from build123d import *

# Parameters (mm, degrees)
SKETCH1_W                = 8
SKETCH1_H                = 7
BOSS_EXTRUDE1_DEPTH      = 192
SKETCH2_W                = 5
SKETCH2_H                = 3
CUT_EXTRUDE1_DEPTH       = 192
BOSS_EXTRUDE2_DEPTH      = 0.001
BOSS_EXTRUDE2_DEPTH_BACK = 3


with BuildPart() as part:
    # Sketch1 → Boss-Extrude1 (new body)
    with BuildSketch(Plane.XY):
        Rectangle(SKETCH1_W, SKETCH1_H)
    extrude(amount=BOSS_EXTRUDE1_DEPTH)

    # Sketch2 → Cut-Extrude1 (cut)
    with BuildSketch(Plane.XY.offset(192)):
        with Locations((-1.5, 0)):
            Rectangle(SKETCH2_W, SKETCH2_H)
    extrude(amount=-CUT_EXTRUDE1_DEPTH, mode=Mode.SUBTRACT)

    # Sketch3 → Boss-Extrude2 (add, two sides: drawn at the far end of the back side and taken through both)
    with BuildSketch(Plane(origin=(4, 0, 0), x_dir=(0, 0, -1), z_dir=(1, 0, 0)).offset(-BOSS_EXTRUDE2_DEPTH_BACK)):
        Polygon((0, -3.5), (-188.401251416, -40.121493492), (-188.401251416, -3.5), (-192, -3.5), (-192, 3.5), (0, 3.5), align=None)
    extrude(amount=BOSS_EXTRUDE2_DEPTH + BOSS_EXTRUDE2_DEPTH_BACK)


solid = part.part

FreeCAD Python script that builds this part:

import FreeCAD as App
import Part
import Sketcher

V = App.Vector
Q = App.Units.Quantity

doc = App.newDocument("Part")
body = doc.addObject("PartDesign::Body", "Body")

sketch1 = body.newObject("Sketcher::SketchObject", "Sketch")
sketch1.AttachmentSupport = (doc.getObject("XY_Plane"), [""])
sketch1.MapMode = "FlatFace"
sketch1.addGeometry(Part.LineSegment(V(-4, 4, 0), V(-4, -4, 0)), False)
sketch1.addGeometry(Part.LineSegment(V(-4, -4, 0), V(4, -4, 0)), False)
sketch1.addGeometry(Part.LineSegment(V(4, -4, 0), V(4, 4, 0)), False)
sketch1.addGeometry(Part.LineSegment(V(4, 4, 0), V(-4, 4, 0)), False)
sketch1.addConstraint(Sketcher.Constraint("Coincident", 0, 2, 1, 1))
sketch1.addConstraint(Sketcher.Constraint("Coincident", 1, 2, 2, 1))
sketch1.addConstraint(Sketcher.Constraint("Coincident", 2, 2, 3, 1))
sketch1.addConstraint(Sketcher.Constraint("Coincident", 3, 2, 0, 1))
sketch1.addConstraint(Sketcher.Constraint("Vertical", 0))
sketch1.addConstraint(Sketcher.Constraint("Horizontal", 1))
sketch1.addConstraint(Sketcher.Constraint("Vertical", 2))
sketch1.addConstraint(Sketcher.Constraint("Horizontal", 3))
sketch1.addConstraint(Sketcher.Constraint("Symmetric", 0, 2, 2, 2, -1, 1))
sketch1.addConstraint(Sketcher.Constraint("DistanceX", 1, 1, 1, 2, 8.0))
sketch1.addConstraint(Sketcher.Constraint("DistanceY", 0, 2, 0, 1, 7.0))
pad1 = body.newObject("PartDesign::Pad", "Pad")
pad1.Profile = sketch1
pad1.Length = 192

sketch2 = body.newObject("Sketcher::SketchObject", "Sketch001")
sketch2.AttachmentSupport = (doc.getObject("XY_Plane"), [""])
sketch2.MapMode = "FlatFace"
sketch2.AttachmentOffset = App.Placement(V(0, 0, 192), App.Rotation())
sketch2.addGeometry(Part.LineSegment(V(-4, 1.5, 0), V(-4, -1.5, 0)), False)
sketch2.addGeometry(Part.LineSegment(V(-4, -1.5, 0), V(1, -1.5, 0)), False)
sketch2.addGeometry(Part.LineSegment(V(1, -1.5, 0), V(1, 1.5, 0)), False)
sketch2.addGeometry(Part.LineSegment(V(1, 1.5, 0), V(-4, 1.5, 0)), False)
sketch2.addConstraint(Sketcher.Constraint("Coincident", 0, 2, 1, 1))
sketch2.addConstraint(Sketcher.Constraint("Coincident", 1, 2, 2, 1))
sketch2.addConstraint(Sketcher.Constraint("Coincident", 2, 2, 3, 1))
sketch2.addConstraint(Sketcher.Constraint("Coincident", 3, 2, 0, 1))
sketch2.addConstraint(Sketcher.Constraint("Vertical", 0))
sketch2.addConstraint(Sketcher.Constraint("Horizontal", 1))
sketch2.addConstraint(Sketcher.Constraint("Vertical", 2))
sketch2.addConstraint(Sketcher.Constraint("Horizontal", 3))
sketch2.addConstraint(Sketcher.Constraint("DistanceX", 1, 1, 1, 2, 5.0))
sketch2.addConstraint(Sketcher.Constraint("DistanceY", 0, 2, 0, 1, 3.0))
sketch2.addConstraint(Sketcher.Constraint("DistanceX", 0, 2, -1, 1, 4.0))
sketch2.addConstraint(Sketcher.Constraint("DistanceY", 0, 2, -1, 1, 1.5))
pocket1 = body.newObject("PartDesign::Pocket", "Pocket")
pocket1.Profile = sketch2
pocket1.Length = 192

sketch3 = body.newObject("Sketcher::SketchObject", "Sketch002")
sketch3.AttachmentSupport = (doc.getObject("YZ_Plane"), [""])
sketch3.MapMode = "FlatFace"
sketch3.AttachmentOffset = App.Placement(V(0, 0, 4), App.Rotation())
sketch3.addGeometry(Part.LineSegment(V(-40.1, 188.4, 0), V(-3.5, 0, 0)), False)
sketch3.addGeometry(Part.LineSegment(V(-3.5, 0, 0), V(3.5, 0, 0)), False)
sketch3.addGeometry(Part.LineSegment(V(3.5, 0, 0), V(3.5, 192, 0)), False)
sketch3.addGeometry(Part.LineSegment(V(3.5, 192, 0), V(-3.5, 192, 0)), False)
sketch3.addGeometry(Part.LineSegment(V(-3.5, 192, 0), V(-3.5, 188.4, 0)), False)
sketch3.addGeometry(Part.LineSegment(V(-3.5, 188.4, 0), V(-40.1, 188.4, 0)), False)
sketch3.addConstraint(Sketcher.Constraint("Coincident", 0, 2, 1, 1))
sketch3.addConstraint(Sketcher.Constraint("Coincident", 1, 2, 2, 1))
sketch3.addConstraint(Sketcher.Constraint("Coincident", 2, 2, 3, 1))
sketch3.addConstraint(Sketcher.Constraint("Coincident", 3, 2, 4, 1))
sketch3.addConstraint(Sketcher.Constraint("Coincident", 4, 2, 5, 1))
sketch3.addConstraint(Sketcher.Constraint("Coincident", 5, 2, 0, 1))
sketch3.addConstraint(Sketcher.Constraint("Horizontal", 1))
sketch3.addConstraint(Sketcher.Constraint("Vertical", 2))
sketch3.addConstraint(Sketcher.Constraint("Horizontal", 3))
sketch3.addConstraint(Sketcher.Constraint("Vertical", 4))
sketch3.addConstraint(Sketcher.Constraint("Horizontal", 5))
sketch3.addConstraint(Sketcher.Constraint("Symmetric", 0, 2, 1, 2, -1, 1))
sketch3.addConstraint(Sketcher.Constraint("Vertical", 0, 2, 3, 2))
sketch3.addConstraint(Sketcher.Constraint("DistanceX", 1, 1, 1, 2, 7.0))
sketch3.addConstraint(Sketcher.Constraint("DistanceY", 2, 1, 2, 2, 192.0))
sketch3.addConstraint(Sketcher.Constraint("Angle", 0, Q("-79 deg")))
sketch3.addConstraint(Sketcher.Constraint("Distance", 0, 191.9275))
pad2 = body.newObject("PartDesign::Pad", "Pad001")
pad2.Profile = sketch3
pad2.Type = "TwoLengths"
pad2.Length = 0.001
pad2.Length2 = 3

doc.recompute()
